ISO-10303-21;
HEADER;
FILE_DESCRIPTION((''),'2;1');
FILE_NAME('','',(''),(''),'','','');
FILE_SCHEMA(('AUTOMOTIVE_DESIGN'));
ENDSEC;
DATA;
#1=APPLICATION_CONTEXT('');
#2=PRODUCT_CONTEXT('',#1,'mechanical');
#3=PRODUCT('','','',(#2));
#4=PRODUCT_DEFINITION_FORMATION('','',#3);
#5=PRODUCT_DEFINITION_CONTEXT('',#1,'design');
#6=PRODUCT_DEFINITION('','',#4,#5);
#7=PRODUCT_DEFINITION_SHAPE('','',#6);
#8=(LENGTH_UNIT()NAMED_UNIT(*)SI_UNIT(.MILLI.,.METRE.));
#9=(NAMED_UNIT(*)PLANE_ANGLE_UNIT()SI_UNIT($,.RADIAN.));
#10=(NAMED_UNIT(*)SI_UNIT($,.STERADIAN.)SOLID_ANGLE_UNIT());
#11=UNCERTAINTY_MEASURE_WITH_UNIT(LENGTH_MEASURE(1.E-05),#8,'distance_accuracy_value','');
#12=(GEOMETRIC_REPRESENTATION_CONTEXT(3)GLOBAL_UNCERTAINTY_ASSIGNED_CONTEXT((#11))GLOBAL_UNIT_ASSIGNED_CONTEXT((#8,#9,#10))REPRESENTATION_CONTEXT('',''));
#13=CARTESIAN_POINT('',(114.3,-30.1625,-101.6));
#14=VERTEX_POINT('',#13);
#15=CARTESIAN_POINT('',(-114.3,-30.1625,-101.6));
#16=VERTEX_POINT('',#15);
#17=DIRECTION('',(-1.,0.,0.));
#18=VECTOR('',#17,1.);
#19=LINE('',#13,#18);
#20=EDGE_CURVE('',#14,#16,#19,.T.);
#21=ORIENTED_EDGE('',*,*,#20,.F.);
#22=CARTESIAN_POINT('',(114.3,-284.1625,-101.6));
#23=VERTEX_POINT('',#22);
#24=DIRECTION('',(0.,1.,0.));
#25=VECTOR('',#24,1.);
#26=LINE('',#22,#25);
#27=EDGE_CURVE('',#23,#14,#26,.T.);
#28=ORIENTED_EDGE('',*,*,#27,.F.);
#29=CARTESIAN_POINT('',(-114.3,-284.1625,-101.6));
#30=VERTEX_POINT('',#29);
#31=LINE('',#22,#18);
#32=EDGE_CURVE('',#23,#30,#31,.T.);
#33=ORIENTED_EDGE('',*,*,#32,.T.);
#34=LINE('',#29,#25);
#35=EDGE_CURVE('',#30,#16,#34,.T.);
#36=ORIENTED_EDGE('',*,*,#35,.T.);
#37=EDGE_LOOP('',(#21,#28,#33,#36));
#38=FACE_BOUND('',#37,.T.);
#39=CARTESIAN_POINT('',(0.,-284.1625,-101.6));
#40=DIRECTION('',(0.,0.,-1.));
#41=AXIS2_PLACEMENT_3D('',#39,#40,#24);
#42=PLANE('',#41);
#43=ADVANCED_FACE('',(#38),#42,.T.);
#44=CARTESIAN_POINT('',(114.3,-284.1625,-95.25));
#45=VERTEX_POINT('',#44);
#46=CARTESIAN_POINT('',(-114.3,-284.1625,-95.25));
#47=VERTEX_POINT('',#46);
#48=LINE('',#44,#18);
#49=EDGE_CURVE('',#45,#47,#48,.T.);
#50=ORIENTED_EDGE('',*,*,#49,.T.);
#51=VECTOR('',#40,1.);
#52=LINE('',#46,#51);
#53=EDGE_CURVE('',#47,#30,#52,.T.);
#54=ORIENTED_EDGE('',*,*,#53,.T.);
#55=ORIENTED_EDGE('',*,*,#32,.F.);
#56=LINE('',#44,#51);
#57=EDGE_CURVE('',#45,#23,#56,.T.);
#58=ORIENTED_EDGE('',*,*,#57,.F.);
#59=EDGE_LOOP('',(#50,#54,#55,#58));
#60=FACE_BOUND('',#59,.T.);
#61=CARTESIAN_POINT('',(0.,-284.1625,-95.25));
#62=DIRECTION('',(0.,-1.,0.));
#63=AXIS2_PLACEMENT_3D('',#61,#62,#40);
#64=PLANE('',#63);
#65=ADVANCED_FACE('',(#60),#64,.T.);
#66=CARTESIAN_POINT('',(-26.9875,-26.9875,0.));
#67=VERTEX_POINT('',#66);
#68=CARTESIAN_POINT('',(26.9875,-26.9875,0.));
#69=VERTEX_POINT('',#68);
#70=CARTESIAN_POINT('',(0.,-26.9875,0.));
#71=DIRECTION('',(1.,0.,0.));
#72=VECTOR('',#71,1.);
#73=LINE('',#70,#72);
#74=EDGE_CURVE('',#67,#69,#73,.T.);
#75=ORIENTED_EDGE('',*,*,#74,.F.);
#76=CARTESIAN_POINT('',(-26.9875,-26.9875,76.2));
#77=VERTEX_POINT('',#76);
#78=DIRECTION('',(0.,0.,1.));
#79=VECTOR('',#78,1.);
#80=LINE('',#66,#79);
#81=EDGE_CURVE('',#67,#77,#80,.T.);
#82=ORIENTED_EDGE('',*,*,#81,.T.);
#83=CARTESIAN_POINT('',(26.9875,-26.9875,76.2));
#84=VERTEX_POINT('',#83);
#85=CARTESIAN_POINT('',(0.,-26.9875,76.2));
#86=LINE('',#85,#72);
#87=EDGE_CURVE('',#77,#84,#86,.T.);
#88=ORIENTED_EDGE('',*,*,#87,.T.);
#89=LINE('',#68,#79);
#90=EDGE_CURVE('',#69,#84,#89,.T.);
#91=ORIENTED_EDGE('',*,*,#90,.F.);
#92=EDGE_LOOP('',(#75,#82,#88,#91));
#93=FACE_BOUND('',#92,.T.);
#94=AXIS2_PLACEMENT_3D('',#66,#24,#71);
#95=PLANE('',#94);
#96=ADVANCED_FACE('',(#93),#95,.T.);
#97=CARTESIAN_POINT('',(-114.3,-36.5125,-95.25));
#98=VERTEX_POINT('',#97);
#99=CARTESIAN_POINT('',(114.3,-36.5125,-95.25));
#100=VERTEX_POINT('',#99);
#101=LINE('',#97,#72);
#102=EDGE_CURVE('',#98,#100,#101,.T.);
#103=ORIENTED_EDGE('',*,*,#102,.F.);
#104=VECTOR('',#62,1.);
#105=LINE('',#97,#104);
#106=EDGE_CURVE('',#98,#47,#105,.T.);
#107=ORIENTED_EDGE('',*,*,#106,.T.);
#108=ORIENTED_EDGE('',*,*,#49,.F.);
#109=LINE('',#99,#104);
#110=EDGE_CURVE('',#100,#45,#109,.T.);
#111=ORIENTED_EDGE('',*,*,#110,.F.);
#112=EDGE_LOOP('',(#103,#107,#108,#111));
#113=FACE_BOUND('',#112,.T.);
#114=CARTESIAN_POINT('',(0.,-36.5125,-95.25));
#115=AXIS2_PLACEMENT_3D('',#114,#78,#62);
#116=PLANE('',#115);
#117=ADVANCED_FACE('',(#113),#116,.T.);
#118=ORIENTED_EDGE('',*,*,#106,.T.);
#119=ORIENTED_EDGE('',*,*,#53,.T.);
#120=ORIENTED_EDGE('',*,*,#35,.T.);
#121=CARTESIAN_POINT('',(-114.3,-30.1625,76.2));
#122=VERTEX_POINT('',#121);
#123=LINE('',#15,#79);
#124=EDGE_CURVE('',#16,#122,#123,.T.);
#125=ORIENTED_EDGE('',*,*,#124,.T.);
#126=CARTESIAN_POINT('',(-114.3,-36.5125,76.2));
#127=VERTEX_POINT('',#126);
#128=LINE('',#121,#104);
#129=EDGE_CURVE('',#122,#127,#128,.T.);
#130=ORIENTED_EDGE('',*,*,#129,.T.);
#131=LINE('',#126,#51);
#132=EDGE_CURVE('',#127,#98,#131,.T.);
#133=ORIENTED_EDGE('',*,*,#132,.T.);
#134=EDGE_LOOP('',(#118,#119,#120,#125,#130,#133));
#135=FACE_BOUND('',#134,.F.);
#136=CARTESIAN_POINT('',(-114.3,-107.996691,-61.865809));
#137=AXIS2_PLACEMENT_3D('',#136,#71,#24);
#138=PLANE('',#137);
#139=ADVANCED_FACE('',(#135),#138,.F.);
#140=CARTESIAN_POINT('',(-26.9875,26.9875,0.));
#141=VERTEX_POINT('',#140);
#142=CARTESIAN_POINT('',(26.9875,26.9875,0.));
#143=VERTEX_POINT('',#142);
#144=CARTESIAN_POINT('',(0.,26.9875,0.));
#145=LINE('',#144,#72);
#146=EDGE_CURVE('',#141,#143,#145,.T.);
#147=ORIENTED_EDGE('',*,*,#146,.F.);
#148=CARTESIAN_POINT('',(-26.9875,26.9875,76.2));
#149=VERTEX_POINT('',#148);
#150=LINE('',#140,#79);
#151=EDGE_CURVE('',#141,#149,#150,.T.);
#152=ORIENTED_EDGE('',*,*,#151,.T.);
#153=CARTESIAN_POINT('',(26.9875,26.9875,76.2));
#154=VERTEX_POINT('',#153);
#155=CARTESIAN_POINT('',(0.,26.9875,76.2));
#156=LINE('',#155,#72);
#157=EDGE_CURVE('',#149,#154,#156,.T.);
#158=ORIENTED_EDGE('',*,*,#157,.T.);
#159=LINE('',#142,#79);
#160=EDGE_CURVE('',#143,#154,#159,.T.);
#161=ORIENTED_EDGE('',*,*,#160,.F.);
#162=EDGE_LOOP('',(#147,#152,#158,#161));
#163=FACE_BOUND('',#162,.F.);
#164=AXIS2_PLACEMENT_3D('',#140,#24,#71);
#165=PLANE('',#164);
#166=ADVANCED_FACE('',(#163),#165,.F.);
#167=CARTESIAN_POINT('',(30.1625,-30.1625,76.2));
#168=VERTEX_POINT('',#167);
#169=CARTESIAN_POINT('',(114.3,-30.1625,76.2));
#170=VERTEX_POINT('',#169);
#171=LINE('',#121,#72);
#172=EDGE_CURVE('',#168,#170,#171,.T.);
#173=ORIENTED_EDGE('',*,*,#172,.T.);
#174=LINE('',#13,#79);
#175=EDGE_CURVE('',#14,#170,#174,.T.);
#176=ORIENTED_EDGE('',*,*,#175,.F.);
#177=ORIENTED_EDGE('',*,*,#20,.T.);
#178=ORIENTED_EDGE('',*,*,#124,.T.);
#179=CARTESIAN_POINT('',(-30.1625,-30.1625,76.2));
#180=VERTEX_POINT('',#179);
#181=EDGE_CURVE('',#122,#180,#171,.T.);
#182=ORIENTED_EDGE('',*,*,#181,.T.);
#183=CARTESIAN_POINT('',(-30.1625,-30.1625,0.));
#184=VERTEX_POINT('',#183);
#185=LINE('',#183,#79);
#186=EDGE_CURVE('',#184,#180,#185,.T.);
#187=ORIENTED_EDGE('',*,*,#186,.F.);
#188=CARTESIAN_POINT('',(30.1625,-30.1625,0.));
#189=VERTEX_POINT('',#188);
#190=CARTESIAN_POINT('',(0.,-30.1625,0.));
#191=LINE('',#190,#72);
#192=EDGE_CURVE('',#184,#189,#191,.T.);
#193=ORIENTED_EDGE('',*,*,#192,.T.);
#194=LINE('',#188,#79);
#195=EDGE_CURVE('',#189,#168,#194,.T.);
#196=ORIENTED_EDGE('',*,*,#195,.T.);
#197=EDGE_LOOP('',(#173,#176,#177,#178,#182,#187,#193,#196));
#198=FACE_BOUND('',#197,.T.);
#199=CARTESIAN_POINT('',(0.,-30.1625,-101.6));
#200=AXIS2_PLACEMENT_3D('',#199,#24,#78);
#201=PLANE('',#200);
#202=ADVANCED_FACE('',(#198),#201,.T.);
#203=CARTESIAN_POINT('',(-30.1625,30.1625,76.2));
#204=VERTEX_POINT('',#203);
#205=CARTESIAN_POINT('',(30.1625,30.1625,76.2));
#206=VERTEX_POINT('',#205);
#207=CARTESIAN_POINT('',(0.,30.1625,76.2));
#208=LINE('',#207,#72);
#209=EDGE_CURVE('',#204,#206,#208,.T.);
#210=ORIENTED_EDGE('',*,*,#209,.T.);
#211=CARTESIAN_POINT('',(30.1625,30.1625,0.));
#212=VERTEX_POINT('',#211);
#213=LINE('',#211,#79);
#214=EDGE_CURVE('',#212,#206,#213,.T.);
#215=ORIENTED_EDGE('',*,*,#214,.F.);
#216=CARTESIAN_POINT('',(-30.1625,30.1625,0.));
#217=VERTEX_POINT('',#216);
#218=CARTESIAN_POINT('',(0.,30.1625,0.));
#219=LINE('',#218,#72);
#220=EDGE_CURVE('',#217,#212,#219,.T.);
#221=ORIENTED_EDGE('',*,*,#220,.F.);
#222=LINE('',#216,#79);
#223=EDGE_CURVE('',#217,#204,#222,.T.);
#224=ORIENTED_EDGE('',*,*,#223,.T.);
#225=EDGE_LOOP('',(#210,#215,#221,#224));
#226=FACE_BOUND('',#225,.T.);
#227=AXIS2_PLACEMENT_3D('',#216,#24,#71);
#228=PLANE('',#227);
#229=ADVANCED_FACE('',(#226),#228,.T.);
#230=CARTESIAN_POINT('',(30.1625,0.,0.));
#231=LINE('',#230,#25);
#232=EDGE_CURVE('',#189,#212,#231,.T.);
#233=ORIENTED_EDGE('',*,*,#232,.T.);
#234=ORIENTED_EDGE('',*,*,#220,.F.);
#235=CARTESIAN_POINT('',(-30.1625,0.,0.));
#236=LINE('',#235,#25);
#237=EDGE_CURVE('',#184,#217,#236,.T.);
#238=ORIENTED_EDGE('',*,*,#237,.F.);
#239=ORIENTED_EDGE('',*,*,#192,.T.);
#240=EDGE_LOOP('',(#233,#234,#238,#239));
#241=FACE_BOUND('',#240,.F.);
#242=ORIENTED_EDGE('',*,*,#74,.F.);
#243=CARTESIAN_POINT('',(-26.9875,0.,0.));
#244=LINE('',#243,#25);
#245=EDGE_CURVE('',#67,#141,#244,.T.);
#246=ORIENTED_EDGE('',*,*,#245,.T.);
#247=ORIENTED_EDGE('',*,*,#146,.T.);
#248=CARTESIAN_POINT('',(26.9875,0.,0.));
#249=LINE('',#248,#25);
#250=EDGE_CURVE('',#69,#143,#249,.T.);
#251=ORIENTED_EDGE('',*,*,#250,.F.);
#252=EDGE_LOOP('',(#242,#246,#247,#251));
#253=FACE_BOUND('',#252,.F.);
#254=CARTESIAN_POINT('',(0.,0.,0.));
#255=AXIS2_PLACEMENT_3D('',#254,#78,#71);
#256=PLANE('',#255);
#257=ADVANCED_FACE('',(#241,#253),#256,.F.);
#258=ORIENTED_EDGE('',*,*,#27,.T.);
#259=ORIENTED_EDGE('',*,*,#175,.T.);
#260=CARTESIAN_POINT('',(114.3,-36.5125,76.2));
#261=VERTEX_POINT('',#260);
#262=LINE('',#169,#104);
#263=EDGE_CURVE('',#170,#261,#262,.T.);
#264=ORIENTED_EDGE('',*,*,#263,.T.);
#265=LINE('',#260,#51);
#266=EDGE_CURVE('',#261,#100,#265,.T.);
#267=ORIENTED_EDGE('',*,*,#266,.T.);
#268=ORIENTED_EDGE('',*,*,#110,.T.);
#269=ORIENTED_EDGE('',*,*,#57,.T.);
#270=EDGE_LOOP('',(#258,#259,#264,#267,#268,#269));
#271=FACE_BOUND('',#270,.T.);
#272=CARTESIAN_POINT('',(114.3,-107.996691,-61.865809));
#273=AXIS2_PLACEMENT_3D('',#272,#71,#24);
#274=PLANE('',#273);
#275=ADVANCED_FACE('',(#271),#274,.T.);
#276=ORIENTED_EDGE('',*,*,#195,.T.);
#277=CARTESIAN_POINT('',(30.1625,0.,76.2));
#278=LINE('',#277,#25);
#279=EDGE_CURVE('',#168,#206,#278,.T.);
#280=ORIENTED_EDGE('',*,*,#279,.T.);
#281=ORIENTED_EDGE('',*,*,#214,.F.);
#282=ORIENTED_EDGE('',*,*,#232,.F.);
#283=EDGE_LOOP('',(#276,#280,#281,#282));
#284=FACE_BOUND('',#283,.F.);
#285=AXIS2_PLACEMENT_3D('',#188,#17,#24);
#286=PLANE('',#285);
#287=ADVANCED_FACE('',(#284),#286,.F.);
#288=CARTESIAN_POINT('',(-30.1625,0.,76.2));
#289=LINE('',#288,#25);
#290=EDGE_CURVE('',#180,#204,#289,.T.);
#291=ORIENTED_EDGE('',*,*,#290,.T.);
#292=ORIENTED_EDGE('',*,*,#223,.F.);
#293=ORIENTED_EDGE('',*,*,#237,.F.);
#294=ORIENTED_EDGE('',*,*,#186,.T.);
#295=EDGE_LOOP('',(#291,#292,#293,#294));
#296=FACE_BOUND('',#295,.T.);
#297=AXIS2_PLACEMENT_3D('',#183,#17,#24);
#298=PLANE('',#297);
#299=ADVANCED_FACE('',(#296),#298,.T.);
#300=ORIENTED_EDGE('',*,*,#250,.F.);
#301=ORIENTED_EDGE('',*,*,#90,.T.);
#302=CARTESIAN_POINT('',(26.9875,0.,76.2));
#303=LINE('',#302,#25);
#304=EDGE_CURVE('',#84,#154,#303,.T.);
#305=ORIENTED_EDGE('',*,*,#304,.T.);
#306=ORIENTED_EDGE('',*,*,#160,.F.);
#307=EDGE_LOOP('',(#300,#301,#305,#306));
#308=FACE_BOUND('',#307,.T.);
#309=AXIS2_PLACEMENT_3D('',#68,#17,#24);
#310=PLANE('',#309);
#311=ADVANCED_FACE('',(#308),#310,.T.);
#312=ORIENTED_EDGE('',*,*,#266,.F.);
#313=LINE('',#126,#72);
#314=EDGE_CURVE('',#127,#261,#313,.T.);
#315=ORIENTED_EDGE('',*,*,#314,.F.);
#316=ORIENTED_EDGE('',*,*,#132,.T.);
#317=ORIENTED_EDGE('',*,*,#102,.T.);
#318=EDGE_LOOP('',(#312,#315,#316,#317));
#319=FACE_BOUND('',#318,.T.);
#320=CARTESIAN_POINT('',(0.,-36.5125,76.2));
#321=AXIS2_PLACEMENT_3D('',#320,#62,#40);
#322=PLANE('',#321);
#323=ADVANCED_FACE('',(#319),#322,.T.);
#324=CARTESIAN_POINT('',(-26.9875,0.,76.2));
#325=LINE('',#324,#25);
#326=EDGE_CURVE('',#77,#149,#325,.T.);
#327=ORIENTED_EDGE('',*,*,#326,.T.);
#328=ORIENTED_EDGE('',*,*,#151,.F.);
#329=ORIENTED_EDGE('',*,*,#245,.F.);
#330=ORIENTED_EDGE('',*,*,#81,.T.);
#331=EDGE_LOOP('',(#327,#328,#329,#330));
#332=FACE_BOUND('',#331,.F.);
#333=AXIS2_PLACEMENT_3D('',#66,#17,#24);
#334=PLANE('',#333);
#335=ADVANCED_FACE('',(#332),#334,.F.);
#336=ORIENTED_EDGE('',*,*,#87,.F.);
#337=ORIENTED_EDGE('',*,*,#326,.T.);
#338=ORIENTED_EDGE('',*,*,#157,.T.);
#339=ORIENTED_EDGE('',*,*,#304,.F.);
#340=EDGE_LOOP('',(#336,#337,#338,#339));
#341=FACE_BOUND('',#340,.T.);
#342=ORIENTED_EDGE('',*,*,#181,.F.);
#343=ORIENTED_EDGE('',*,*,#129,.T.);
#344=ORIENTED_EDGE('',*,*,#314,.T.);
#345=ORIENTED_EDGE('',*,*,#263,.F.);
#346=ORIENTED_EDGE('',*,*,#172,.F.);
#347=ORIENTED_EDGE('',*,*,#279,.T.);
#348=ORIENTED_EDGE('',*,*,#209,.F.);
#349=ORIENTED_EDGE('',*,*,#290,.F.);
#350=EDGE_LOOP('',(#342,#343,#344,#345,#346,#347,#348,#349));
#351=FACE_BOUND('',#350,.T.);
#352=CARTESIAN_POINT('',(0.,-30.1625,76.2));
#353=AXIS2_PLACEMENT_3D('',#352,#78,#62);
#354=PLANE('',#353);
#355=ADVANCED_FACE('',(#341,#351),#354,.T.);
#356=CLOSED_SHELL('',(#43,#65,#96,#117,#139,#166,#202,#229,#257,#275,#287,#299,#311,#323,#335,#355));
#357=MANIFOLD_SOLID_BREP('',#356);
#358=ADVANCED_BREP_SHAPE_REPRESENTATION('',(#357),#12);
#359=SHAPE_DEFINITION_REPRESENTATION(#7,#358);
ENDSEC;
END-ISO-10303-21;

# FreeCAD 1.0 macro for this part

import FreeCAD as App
import Part
import Sketcher
Q = App.Units.Quantity


def add_polygon(sketch, points):
    """Adds a closed chain of lines whose ends are joined by coincident constraints."""
    first, n = sketch.GeometryCount, len(points)
    for a, b in zip(points, points[1:] + points[:1]):
        sketch.addGeometry(Part.LineSegment(App.Vector(*a, 0), App.Vector(*b, 0)), False)
    for i in range(n):
        sketch.addConstraint(Sketcher.Constraint("Coincident", first + i, 2, first + (i + 1) % n, 1))

doc = App.newDocument("Part")
params = doc.addObject("Spreadsheet::Sheet", "Params")
for row, (alias, value) in enumerate([
    ("sketch1_width", "2.375 in"),
    ("sketch1_width2", "2.125 in"),
    ("pad1_length", "3 in"),
    ("sketch2_width", "10 in"),
    ("sketch2_height", "7 in"),
    ("sketch2_width2", "0.25 in"),
    ("pad2_length", "9 in"),
], start=1):
    params.set(f"A{row}", alias)
    params.set(f"B{row}", "=" + value)
    params.setAlias(f"B{row}", alias)

body = doc.addObject("PartDesign::Body", "Body")

sketch1 = doc.addObject("Sketcher::SketchObject", "Sketch")
body.addObject(sketch1)
sketch1.AttachmentSupport = (doc.XY_Plane, [""])
sketch1.MapMode = "FlatFace"
add_polygon(sketch1, [(-30.1625, 30.1625), (-30.1625, -30.1625), (30.1625, -30.1625), (30.1625, 30.1625)])
add_polygon(sketch1, [(26.9875, -26.9875), (-26.9875, -26.9875), (-26.9875, 26.9875), (26.9875, 26.9875)])
sketch1.addConstraint(Sketcher.Constraint("Vertical", 0))
sketch1.addConstraint(Sketcher.Constraint("Horizontal", 1))
sketch1.addConstraint(Sketcher.Constraint("Vertical", 2))
sketch1.addConstraint(Sketcher.Constraint("Horizontal", 3))
sketch1.addConstraint(Sketcher.Constraint("Horizontal", 4))
sketch1.addConstraint(Sketcher.Constraint("Vertical", 5))
sketch1.addConstraint(Sketcher.Constraint("Horizontal", 6))
sketch1.addConstraint(Sketcher.Constraint("Vertical", 7))
sketch1.addConstraint(Sketcher.Constraint("Symmetric", 0, 2, 2, 2, -1, 1))
sketch1.addConstraint(Sketcher.Constraint("Symmetric", 4, 2, 6, 2, -1, 1))
sketch1.addConstraint(Sketcher.Constraint("Equal", 3, 0))
sketch1.addConstraint(Sketcher.Constraint("Equal", 6, 5))
sketch1.addConstraint(Sketcher.Constraint("DistanceX", 1, 1, 1, 2, Q("2.375 in")))
sketch1.addConstraint(Sketcher.Constraint("DistanceX", 4, 2, 4, 1, Q("2.125 in")))
sketch1.setExpression("Constraints[20]", "Params.sketch1_width")
sketch1.setExpression("Constraints[21]", "Params.sketch1_width2")
pad1 = doc.addObject("PartDesign::Pad", "Pad")
body.addObject(pad1)
pad1.Profile = sketch1
pad1.setExpression("Length", "Params.pad1_length")

sketch2 = doc.addObject("Sketcher::SketchObject", "Sketch001")
body.addObject(sketch2)
sketch2.AttachmentSupport = (doc.YZ_Plane, [""])
sketch2.MapMode = "FlatFace"
add_polygon(sketch2, [(-30.1625, -101.6), (-30.1625, 76.2), (-36.5125, 76.2), (-36.5125, -95.25), (-284.1625, -95.25), (-284.1625, -101.6)])
sketch2.addConstraint(Sketcher.Constraint("Vertical", 0))
sketch2.addConstraint(Sketcher.Constraint("Horizontal", 1))
sketch2.addConstraint(Sketcher.Constraint("Vertical", 2))
sketch2.addConstraint(Sketcher.Constraint("Horizontal", 3))
sketch2.addConstraint(Sketcher.Constraint("Vertical", 4))
sketch2.addConstraint(Sketcher.Constraint("Horizontal", 5))
sketch2.addConstraint(Sketcher.Constraint("Equal", 1, 4))
sketch2.addConstraint(Sketcher.Constraint("DistanceX", 5, 1, 5, 2, Q("10 in")))
sketch2.addConstraint(Sketcher.Constraint("DistanceY", 0, 1, 0, 2, Q("7 in")))
sketch2.addConstraint(Sketcher.Constraint("DistanceY", -1, 1, 0, 2, Q("3 in")))
sketch2.addConstraint(Sketcher.Constraint("DistanceX", 1, 2, 1, 1, Q("0.25 in")))
sketch2.addConstraint(Sketcher.Constraint("DistanceX", 0, 2, -1, 1, Q("1.1875 in")))
sketch2.setExpression("Constraints[13]", "Params.sketch2_width")
sketch2.setExpression("Constraints[14]", "Params.sketch2_height")
sketch2.setExpression("Constraints[16]", "Params.sketch2_width2")
pad2 = doc.addObject("PartDesign::Pad", "Pad001")
body.addObject(pad2)
pad2.Profile = sketch2
pad2.setExpression("Length", "Params.pad2_length")
pad2.Midplane = True

doc.recompute()
